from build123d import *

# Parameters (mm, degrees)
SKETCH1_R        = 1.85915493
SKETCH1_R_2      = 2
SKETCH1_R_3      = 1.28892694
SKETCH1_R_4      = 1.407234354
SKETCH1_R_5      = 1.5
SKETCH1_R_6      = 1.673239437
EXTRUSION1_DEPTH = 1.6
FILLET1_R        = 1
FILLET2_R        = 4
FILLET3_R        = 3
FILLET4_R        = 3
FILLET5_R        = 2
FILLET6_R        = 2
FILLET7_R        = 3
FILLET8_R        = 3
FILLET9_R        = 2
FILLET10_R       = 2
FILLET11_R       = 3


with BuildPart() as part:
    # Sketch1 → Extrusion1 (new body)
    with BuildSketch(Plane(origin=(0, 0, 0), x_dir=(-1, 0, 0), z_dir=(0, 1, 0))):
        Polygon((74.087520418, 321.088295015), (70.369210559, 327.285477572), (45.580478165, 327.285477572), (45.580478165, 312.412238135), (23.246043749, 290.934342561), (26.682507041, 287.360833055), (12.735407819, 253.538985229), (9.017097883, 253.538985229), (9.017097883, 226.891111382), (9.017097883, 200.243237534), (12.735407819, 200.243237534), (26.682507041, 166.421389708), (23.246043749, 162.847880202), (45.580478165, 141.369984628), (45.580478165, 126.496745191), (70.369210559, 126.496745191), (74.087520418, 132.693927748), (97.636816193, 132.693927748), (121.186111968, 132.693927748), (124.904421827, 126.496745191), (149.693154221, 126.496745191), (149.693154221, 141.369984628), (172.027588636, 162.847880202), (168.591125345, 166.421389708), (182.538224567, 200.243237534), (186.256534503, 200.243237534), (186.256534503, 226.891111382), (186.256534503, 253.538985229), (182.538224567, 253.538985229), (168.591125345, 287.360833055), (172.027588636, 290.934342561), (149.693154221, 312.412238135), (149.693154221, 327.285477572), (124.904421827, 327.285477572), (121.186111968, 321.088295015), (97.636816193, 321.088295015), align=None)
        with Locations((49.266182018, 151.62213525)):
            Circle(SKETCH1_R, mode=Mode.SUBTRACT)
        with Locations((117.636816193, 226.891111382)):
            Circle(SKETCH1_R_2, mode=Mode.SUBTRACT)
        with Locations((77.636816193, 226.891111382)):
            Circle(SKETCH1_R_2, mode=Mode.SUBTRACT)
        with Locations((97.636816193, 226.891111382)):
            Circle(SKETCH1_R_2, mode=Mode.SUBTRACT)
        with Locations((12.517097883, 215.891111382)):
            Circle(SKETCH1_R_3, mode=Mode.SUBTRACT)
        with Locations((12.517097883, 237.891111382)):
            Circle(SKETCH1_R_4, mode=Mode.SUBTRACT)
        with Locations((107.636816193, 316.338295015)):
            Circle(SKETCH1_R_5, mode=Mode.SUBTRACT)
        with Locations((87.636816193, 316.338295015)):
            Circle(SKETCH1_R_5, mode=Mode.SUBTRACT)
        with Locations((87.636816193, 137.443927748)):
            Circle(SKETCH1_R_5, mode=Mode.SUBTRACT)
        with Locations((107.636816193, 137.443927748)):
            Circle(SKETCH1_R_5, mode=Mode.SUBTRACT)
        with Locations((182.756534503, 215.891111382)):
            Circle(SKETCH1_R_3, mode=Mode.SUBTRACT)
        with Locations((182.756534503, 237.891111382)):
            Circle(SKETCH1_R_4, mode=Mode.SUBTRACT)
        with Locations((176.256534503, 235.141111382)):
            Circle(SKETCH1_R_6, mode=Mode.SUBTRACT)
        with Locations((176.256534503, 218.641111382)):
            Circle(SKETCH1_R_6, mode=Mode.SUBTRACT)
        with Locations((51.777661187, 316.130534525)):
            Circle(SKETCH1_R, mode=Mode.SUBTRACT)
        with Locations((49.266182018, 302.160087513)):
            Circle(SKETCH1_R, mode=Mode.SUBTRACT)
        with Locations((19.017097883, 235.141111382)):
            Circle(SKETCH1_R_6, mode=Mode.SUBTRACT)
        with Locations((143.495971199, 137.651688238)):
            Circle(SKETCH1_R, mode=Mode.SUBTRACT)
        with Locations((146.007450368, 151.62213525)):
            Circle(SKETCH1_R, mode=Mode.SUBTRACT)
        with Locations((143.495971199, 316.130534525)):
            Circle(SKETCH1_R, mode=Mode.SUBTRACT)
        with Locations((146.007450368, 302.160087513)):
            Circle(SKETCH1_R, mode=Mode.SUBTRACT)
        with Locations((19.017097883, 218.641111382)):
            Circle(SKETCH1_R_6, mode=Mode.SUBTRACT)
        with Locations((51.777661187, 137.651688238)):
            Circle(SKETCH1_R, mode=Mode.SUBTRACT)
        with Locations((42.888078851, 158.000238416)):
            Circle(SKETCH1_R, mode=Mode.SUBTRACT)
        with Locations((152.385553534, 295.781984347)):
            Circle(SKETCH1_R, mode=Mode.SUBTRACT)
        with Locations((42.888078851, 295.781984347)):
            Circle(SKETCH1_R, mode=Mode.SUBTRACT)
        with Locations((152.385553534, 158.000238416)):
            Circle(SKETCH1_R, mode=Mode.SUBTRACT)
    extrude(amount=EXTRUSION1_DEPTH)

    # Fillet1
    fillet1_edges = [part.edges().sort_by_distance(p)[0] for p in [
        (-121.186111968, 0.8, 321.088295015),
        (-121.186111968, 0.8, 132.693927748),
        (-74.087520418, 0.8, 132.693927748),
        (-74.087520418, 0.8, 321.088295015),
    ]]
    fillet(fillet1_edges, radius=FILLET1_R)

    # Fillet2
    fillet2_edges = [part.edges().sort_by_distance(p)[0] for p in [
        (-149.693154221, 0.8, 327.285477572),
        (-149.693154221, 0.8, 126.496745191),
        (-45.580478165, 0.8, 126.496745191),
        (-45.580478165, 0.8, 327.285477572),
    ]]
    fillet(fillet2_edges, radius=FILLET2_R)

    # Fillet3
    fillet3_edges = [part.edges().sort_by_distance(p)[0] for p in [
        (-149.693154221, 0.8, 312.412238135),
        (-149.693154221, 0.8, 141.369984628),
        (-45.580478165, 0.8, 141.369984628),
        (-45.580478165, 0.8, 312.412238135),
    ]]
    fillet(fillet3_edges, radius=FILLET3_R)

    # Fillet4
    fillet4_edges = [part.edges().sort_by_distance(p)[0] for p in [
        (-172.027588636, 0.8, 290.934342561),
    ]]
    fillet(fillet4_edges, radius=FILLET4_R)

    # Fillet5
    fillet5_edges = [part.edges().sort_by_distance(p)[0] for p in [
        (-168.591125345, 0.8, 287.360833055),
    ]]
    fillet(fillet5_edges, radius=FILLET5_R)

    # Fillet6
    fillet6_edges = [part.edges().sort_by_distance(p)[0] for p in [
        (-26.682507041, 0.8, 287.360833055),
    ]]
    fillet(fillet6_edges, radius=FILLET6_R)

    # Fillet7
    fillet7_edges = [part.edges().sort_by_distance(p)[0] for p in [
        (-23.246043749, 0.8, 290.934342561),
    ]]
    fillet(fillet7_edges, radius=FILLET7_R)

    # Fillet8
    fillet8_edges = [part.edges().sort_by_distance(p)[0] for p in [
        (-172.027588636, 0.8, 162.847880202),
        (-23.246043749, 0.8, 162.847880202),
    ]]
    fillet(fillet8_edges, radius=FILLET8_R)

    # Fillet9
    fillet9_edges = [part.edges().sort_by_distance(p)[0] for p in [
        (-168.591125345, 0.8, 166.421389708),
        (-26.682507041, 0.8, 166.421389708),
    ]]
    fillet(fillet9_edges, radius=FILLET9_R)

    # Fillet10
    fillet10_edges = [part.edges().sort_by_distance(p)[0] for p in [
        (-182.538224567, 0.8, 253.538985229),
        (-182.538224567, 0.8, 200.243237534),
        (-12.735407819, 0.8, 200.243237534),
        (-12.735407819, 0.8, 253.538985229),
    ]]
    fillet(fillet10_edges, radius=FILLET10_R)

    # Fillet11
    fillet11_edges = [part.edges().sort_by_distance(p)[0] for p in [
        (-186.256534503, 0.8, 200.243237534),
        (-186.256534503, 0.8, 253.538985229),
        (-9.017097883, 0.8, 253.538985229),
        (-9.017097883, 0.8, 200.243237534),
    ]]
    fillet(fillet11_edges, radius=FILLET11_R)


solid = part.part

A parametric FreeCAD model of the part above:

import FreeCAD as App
import Part
import Sketcher

V = App.Vector
Q = App.Units.Quantity


def edges_at(feature, points):
    """Names of the edges that pass closest to the given points."""
    edges = feature.Shape.Edges
    near = lambda p: min(range(len(edges)), key=lambda i: edges[i].distToShape(Part.Vertex(*p))[0])
    return sorted({f"Edge{near(p) + 1}" for p in points})

doc = App.newDocument("Part")
body = doc.addObject("PartDesign::Body", "Body")

sketch1 = body.newObject("Sketcher::SketchObject", "Sketch")
sketch1.AttachmentSupport = (doc.getObject("XZ_Plane"), [""])
sketch1.MapMode = "FlatFace"
sketch1.addGeometry([
    Part.LineSegment(V(-74.1, 321.1, 0), V(-70.4, 327.3, 0)),
    Part.LineSegment(V(-70.4, 327.3, 0), V(-45.6, 327.3, 0)),
    Part.LineSegment(V(-45.6, 327.3, 0), V(-45.6, 312.4, 0)),
    Part.LineSegment(V(-45.6, 312.4, 0), V(-23.2, 290.9, 0)),
    Part.LineSegment(V(-23.2, 290.9, 0), V(-26.7, 287.4, 0)),
    Part.LineSegment(V(-26.7, 287.4, 0), V(-12.7, 253.5, 0)),
    Part.LineSegment(V(-12.7, 253.5, 0), V(-9, 253.5, 0)),
    Part.LineSegment(V(-9, 253.5, 0), V(-9, 200.2, 0)),
    Part.LineSegment(V(-9, 200.2, 0), V(-12.7, 200.2, 0)),
    Part.LineSegment(V(-12.7, 200.2, 0), V(-26.7, 166.4, 0)),
    Part.LineSegment(V(-26.7, 166.4, 0), V(-23.2, 162.8, 0)),
    Part.LineSegment(V(-23.2, 162.8, 0), V(-45.6, 141.4, 0)),
    Part.LineSegment(V(-45.6, 141.4, 0), V(-45.6, 126.5, 0)),
    Part.LineSegment(V(-45.6, 126.5, 0), V(-70.4, 126.5, 0)),
    Part.LineSegment(V(-70.4, 126.5, 0), V(-74.1, 132.7, 0)),
    Part.LineSegment(V(-74.1, 132.7, 0), V(-121.2, 132.7, 0)),
    Part.LineSegment(V(-121.2, 132.7, 0), V(-124.9, 126.5, 0)),
    Part.LineSegment(V(-124.9, 126.5, 0), V(-149.7, 126.5, 0)),
    Part.LineSegment(V(-149.7, 126.5, 0), V(-149.7, 141.4, 0)),
    Part.LineSegment(V(-149.7, 141.4, 0), V(-172, 162.8, 0)),
    Part.LineSegment(V(-172, 162.8, 0), V(-168.6, 166.4, 0)),
    Part.LineSegment(V(-168.6, 166.4, 0), V(-182.5, 200.2, 0)),
    Part.LineSegment(V(-182.5, 200.2, 0), V(-186.3, 200.2, 0)),
    Part.LineSegment(V(-186.3, 200.2, 0), V(-186.3, 253.5, 0)),
    Part.LineSegment(V(-186.3, 253.5, 0), V(-182.5, 253.5, 0)),
    Part.LineSegment(V(-182.5, 253.5, 0), V(-168.6, 287.4, 0)),
    Part.LineSegment(V(-168.6, 287.4, 0), V(-172, 290.9, 0)),
    Part.LineSegment(V(-172, 290.9, 0), V(-149.7, 312.4, 0)),
    Part.LineSegment(V(-149.7, 312.4, 0), V(-149.7, 327.3, 0)),
    Part.LineSegment(V(-149.7, 327.3, 0), V(-124.9, 327.3, 0)),
    Part.LineSegment(V(-124.9, 327.3, 0), V(-121.2, 321.1, 0)),
    Part.LineSegment(V(-121.2, 321.1, 0), V(-74.1, 321.1, 0)),
    Part.Circle(V(-51.8, 137.7, 0), V(0, 0, 1), 1.9),
    Part.Circle(V(-42.9, 158, 0), V(0, 0, 1), 1.9),
    Part.Circle(V(-49.3, 151.6, 0), V(0, 0, 1), 1.9),
    Part.Circle(V(-87.6, 137.4, 0), V(0, 0, 1), 1.5),
    Part.Circle(V(-12.5, 215.9, 0), V(0, 0, 1), 1.3),
    Part.Circle(V(-19, 218.6, 0), V(0, 0, 1), 1.7),
    Part.Circle(V(-107.6, 137.4, 0), V(0, 0, 1), 1.5),
    Part.Circle(V(-143.5, 137.7, 0), V(0, 0, 1), 1.9),
    Part.Circle(V(-146, 151.6, 0), V(0, 0, 1), 1.9),
    Part.Circle(V(-152.4, 158, 0), V(0, 0, 1), 1.9),
    Part.Circle(V(-176.3, 218.6, 0), V(0, 0, 1), 1.7),
    Part.Circle(V(-182.8, 215.9, 0), V(0, 0, 1), 1.3),
    Part.Circle(V(-12.5, 237.9, 0), V(0, 0, 1), 1.4),
    Part.Circle(V(-19, 235.1, 0), V(0, 0, 1), 1.7),
    Part.Circle(V(-77.6, 226.9, 0), V(0, 0, 1), 2),
    Part.Circle(V(-42.9, 295.8, 0), V(0, 0, 1), 1.9),
    Part.Circle(V(-49.3, 302.2, 0), V(0, 0, 1), 1.9),
    Part.Circle(V(-51.8, 316.1, 0), V(0, 0, 1), 1.9),
    Part.Circle(V(-87.6, 316.3, 0), V(0, 0, 1), 1.5),
    Part.Circle(V(-97.6, 226.9, 0), V(0, 0, 1), 2),
    Part.Circle(V(-117.6, 226.9, 0), V(0, 0, 1), 2),
    Part.Circle(V(-176.3, 235.1, 0), V(0, 0, 1), 1.7),
    Part.Circle(V(-182.8, 237.9, 0), V(0, 0, 1), 1.4),
    Part.Circle(V(-107.6, 316.3, 0), V(0, 0, 1), 1.5),
    Part.Circle(V(-146, 302.2, 0), V(0, 0, 1), 1.9),
    Part.Circle(V(-152.4, 295.8, 0), V(0, 0, 1), 1.9),
    Part.Circle(V(-143.5, 316.1, 0), V(0, 0, 1), 1.9),
], False)
sketch1.addConstraint([
    Sketcher.Constraint("Coincident", 0, 2, 1, 1),
    Sketcher.Constraint("Coincident", 1, 2, 2, 1),
    Sketcher.Constraint("Coincident", 2, 2, 3, 1),
    Sketcher.Constraint("Coincident", 3, 2, 4, 1),
    Sketcher.Constraint("Coincident", 4, 2, 5, 1),
    Sketcher.Constraint("Coincident", 5, 2, 6, 1),
    Sketcher.Constraint("Coincident", 6, 2, 7, 1),
    Sketcher.Constraint("Coincident", 7, 2, 8, 1),
    Sketcher.Constraint("Coincident", 8, 2, 9, 1),
    Sketcher.Constraint("Coincident", 9, 2, 10, 1),
    Sketcher.Constraint("Coincident", 10, 2, 11, 1),
    Sketcher.Constraint("Coincident", 11, 2, 12, 1),
    Sketcher.Constraint("Coincident", 12, 2, 13, 1),
    Sketcher.Constraint("Coincident", 13, 2, 14, 1),
    Sketcher.Constraint("Coincident", 14, 2, 15, 1),
    Sketcher.Constraint("Coincident", 15, 2, 16, 1),
    Sketcher.Constraint("Coincident", 16, 2, 17, 1),
    Sketcher.Constraint("Coincident", 17, 2, 18, 1),
    Sketcher.Constraint("Coincident", 18, 2, 19, 1),
    Sketcher.Constraint("Coincident", 19, 2, 20, 1),
    Sketcher.Constraint("Coincident", 20, 2, 21, 1),
    Sketcher.Constraint("Coincident", 21, 2, 22, 1),
    Sketcher.Constraint("Coincident", 22, 2, 23, 1),
    Sketcher.Constraint("Coincident", 23, 2, 24, 1),
    Sketcher.Constraint("Coincident", 24, 2, 25, 1),
    Sketcher.Constraint("Coincident", 25, 2, 26, 1),
    Sketcher.Constraint("Coincident", 26, 2, 27, 1),
    Sketcher.Constraint("Coincident", 27, 2, 28, 1),
    Sketcher.Constraint("Coincident", 28, 2, 29, 1),
    Sketcher.Constraint("Coincident", 29, 2, 30, 1),
    Sketcher.Constraint("Coincident", 30, 2, 31, 1),
    Sketcher.Constraint("Coincident", 31, 2, 0, 1),
    Sketcher.Constraint("Horizontal", 1),
    Sketcher.Constraint("Vertical", 2),
    Sketcher.Constraint("Horizontal", 6),
    Sketcher.Constraint("Vertical", 7),
    Sketcher.Constraint("Horizontal", 8),
    Sketcher.Constraint("Vertical", 12),
    Sketcher.Constraint("Horizontal", 13),
    Sketcher.Constraint("Horizontal", 15),
    Sketcher.Constraint("Horizontal", 17),
    Sketcher.Constraint("Vertical", 18),
    Sketcher.Constraint("Horizontal", 22),
    Sketcher.Constraint("Vertical", 23),
    Sketcher.Constraint("Horizontal", 24),
    Sketcher.Constraint("Vertical", 28),
    Sketcher.Constraint("Horizontal", 29),
    Sketcher.Constraint("Horizontal", 31),
    Sketcher.Constraint("Equal", 32, 33),
    Sketcher.Constraint("Equal", 33, 34),
    Sketcher.Constraint("Equal", 35, 38),
    Sketcher.Constraint("Equal", 34, 39),
    Sketcher.Constraint("Equal", 39, 40),
    Sketcher.Constraint("Equal", 40, 41),
    Sketcher.Constraint("Equal", 37, 42),
    Sketcher.Constraint("Equal", 36, 43),
    Sketcher.Constraint("Equal", 42, 45),
    Sketcher.Constraint("Equal", 41, 47),
    Sketcher.Constraint("Equal", 47, 48),
    Sketcher.Constraint("Equal", 48, 49),
    Sketcher.Constraint("Equal", 38, 50),
    Sketcher.Constraint("Equal", 46, 51),
    Sketcher.Constraint("Equal", 51, 52),
    Sketcher.Constraint("Equal", 45, 53),
    Sketcher.Constraint("Equal", 44, 54),
    Sketcher.Constraint("Equal", 50, 55),
    Sketcher.Constraint("Equal", 49, 56),
    Sketcher.Constraint("Equal", 56, 57),
    Sketcher.Constraint("Equal", 57, 58),
    Sketcher.Constraint("Perpendicular", 3, 4),
    Sketcher.Constraint("Perpendicular", 10, 11),
    Sketcher.Constraint("Parallel", 0, 16),
    Sketcher.Constraint("Perpendicular", 4, 19),
    Sketcher.Constraint("Perpendicular", 19, 20),
    Sketcher.Constraint("Parallel", 5, 21),
    Sketcher.Constraint("Parallel", 9, 25),
    Sketcher.Constraint("Perpendicular", 11, 26),
    Sketcher.Constraint("Perpendicular", 26, 27),
    Sketcher.Constraint("Parallel", 14, 30),
    Sketcher.Constraint("Horizontal", 35, 3, 38, 3),
    Sketcher.Constraint("Horizontal", 32, 3, 39, 3),
    Sketcher.Constraint("Horizontal", 34, 3, 40, 3),
    Sketcher.Constraint("Horizontal", 33, 3, 41, 3),
    Sketcher.Constraint("Horizontal", 37, 3, 42, 3),
    Sketcher.Constraint("Horizontal", 36, 3, 43, 3),
    Sketcher.Constraint("Horizontal", 46, 3, 51, 3),
    Sketcher.Constraint("Horizontal", 51, 3, 52, 3),
    Sketcher.Constraint("Horizontal", 45, 3, 53, 3),
    Sketcher.Constraint("Horizontal", 44, 3, 54, 3),
    Sketcher.Constraint("Horizontal", 50, 3, 55, 3),
    Sketcher.Constraint("Horizontal", 48, 3, 56, 3),
    Sketcher.Constraint("Horizontal", 47, 3, 57, 3),
    Sketcher.Constraint("Horizontal", 49, 3, 58, 3),
    Sketcher.Constraint("Horizontal", 13, 2, 16, 2),
    Sketcher.Constraint("Horizontal", 11, 2, 18, 2),
    Sketcher.Constraint("Horizontal", 10, 2, 19, 2),
    Sketcher.Constraint("Horizontal", 9, 2, 20, 2),
    Sketcher.Constraint("Horizontal", 8, 2, 21, 2),
    Sketcher.Constraint("Horizontal", 6, 2, 23, 2),
    Sketcher.Constraint("Horizontal", 4, 2, 25, 2),
    Sketcher.Constraint("Horizontal", 3, 2, 26, 2),
    Sketcher.Constraint("Horizontal", 2, 2, 27, 2),
    Sketcher.Constraint("Horizontal", 1, 2, 28, 2),
    Sketcher.Constraint("Vertical", 36, 3, 44, 3),
    Sketcher.Constraint("Vertical", 37, 3, 45, 3),
    Sketcher.Constraint("Vertical", 33, 3, 47, 3),
    Sketcher.Constraint("Vertical", 34, 3, 48, 3),
    Sketcher.Constraint("Vertical", 32, 3, 49, 3),
    Sketcher.Constraint("Vertical", 35, 3, 50, 3),
    Sketcher.Constraint("Vertical", 42, 3, 53, 3),
    Sketcher.Constraint("Vertical", 43, 3, 54, 3),
    Sketcher.Constraint("Vertical", 38, 3, 55, 3),
    Sketcher.Constraint("Vertical", 40, 3, 56, 3),
    Sketcher.Constraint("Vertical", 41, 3, 57, 3),
    Sketcher.Constraint("Vertical", 39, 3, 58, 3),
    Sketcher.Constraint("Vertical", 5, 2, 8, 2),
    Sketcher.Constraint("Vertical", 4, 2, 9, 2),
    Sketcher.Constraint("Vertical", 3, 2, 10, 2),
    Sketcher.Constraint("Vertical", 2, 2, 11, 2),
    Sketcher.Constraint("Vertical", 0, 2, 13, 2),
    Sketcher.Constraint("Vertical", 21, 2, 24, 2),
    Sketcher.Constraint("Vertical", 20, 2, 25, 2),
    Sketcher.Constraint("Vertical", 19, 2, 26, 2),
    Sketcher.Constraint("Vertical", 16, 2, 29, 2),
    Sketcher.Constraint("Vertical", 15, 2, 30, 2),
    Sketcher.Constraint("Vertical", 14, 2, 31, 2),
    Sketcher.Constraint("Equal", 13, 17),
    Sketcher.Constraint("Equal", 8, 22),
    Sketcher.Constraint("Equal", 2, 12),
    Sketcher.Constraint("Diameter", 35, 3.0),
    Sketcher.Constraint("Diameter", 46, 4.0),
    Sketcher.Constraint("DistanceX", 38, 3, 35, 3, 20.0),
    Sketcher.Constraint("DistanceY", 36, 3, 44, 3, 22.0),
    Sketcher.Constraint("DistanceY", 36, 3, 46, 3, 11.0),
    Sketcher.Constraint("DistanceX", 50, 3, 46, 3, 10.0),
    Sketcher.Constraint("DistanceX", 51, 3, 46, 3, 20.0),
    Sketcher.Constraint("DistanceX", 52, 3, 51, 3, 20.0),
    Sketcher.Constraint("DistanceX", 45, 3, 6, 2, 10.0),
    Sketcher.Constraint("DistanceX", 22, 2, 42, 3, 10.0),
    Sketcher.Constraint("Angle", 3, Q("-43.88 deg")),
    Sketcher.Constraint("DistanceX", 37, 3, 36, 3, 6.5),
    Sketcher.Constraint("DistanceX", 43, 3, 42, 3, 6.5),
    Sketcher.Constraint("DistanceY", 37, 3, 45, 3, 16.5),
    Sketcher.Constraint("Diameter", 32, 3.71831),
    Sketcher.Constraint("Diameter", 37, 3.346479),
    Sketcher.Constraint("Diameter", 44, 2.814469),
    Sketcher.Constraint("DistanceY", 36, 3, 37, 3, 2.75),
    Sketcher.Constraint("DistanceY", 14, 2, 35, 3, 4.75),
    Sketcher.Constraint("DistanceY", 55, 3, 30, 2, 4.75),
    Sketcher.Constraint("Diameter", 36, 2.577854),
    Sketcher.Constraint("DistanceX", 6, 1, 6, 2, 3.71831),
    Sketcher.Constraint("DistanceX", 15, 2, 15, 1, 47.098592),
    Sketcher.Constraint("DistanceY", 2, 2, 2, 1, 14.873239),
    Sketcher.Constraint("DistanceX", 1, 2, 47, 3, 2.692399),
    Sketcher.Constraint("DistanceY", 4, 2, 49, 3, 28.769701),
    Sketcher.Constraint("DistanceX", 4, 2, 5, 2, 13.947099),
    Sketcher.Constraint("DistanceY", 32, 3, 9, 2, 28.769701),
    Sketcher.Constraint("DistanceX", 41, 3, 17, 2, 2.692399),
    Sketcher.Constraint("DistanceX", 1, 1, 1, 2, 24.788732),
    Sketcher.Constraint("DistanceY", 7, 2, 7, 1, 53.295748),
    Sketcher.Constraint("DistanceX", 32, 3, -1, 1, 51.777661),
    Sketcher.Constraint("DistanceY", -1, 1, 32, 3, 137.651688),
    Sketcher.Constraint("DistanceX", 33, 3, -1, 1, 42.888079),
    Sketcher.Constraint("DistanceY", -1, 1, 33, 3, 158.000238),
    Sketcher.Constraint("DistanceY", -1, 1, 36, 3, 215.891111),
    Sketcher.Constraint("DistanceX", 39, 3, -1, 1, 143.495971),
    Sketcher.Constraint("DistanceX", 40, 3, -1, 1, 146.00745),
    Sketcher.Constraint("DistanceY", -1, 1, 2, 2, 312.412238),
    Sketcher.Constraint("DistanceY", -1, 1, 10, 2, 162.84788),
    Sketcher.Constraint("DistanceX", 14, 2, -1, 1, 74.08752),
    Sketcher.Constraint("DistanceX", 19, 2, -1, 1, 172.027589),
    Sketcher.Constraint("DistanceX", 32, 3, 34, 3, 2.511479),
    Sketcher.Constraint("DistanceY", 35, 3, 32, 3, 0.20776),
    Sketcher.Constraint("DistanceX", 35, 3, 36, 3, 75.119718),
    Sketcher.Constraint("DistanceY", 47, 3, 49, 3, 20.34855),
    Sketcher.Constraint("DistanceY", 48, 3, 0, 2, 25.12539),
    Sketcher.Constraint("DistanceY", 11, 2, 34, 3, 10.252151),
])
pad1 = body.newObject("PartDesign::Pad", "Pad")
pad1.Profile = sketch1
pad1.Length = 1.6
pad1.Reversed = True
doc.recompute()

fillet = body.newObject("PartDesign::Fillet", "Fillet")
fillet.Base = (pad1, edges_at(pad1, [
    (-121.186, 0.8, 321.088),
    (-121.186, 0.8, 132.694),
    (-74.088, 0.8, 132.694),
    (-74.088, 0.8, 321.088),
]))
fillet.Radius = 1
doc.recompute()

fillet2 = body.newObject("PartDesign::Fillet", "Fillet001")
fillet2.Base = (fillet, edges_at(fillet, [
    (-149.693, 0.8, 327.285),
    (-149.693, 0.8, 126.497),
    (-45.58, 0.8, 126.497),
    (-45.58, 0.8, 327.285),
]))
fillet2.Radius = 4
doc.recompute()

fillet3 = body.newObject("PartDesign::Fillet", "Fillet002")
fillet3.Base = (fillet2, edges_at(fillet2, [
    (-149.693, 0.8, 312.412),
    (-149.693, 0.8, 141.37),
    (-45.58, 0.8, 141.37),
    (-45.58, 0.8, 312.412),
]))
fillet3.Radius = 3
doc.recompute()

fillet4 = body.newObject("PartDesign::Fillet", "Fillet003")
fillet4.Base = (fillet3, edges_at(fillet3, [(-172.028, 0.8, 290.934)]))
fillet4.Radius = 3
doc.recompute()

fillet5 = body.newObject("PartDesign::Fillet", "Fillet004")
fillet5.Base = (fillet4, edges_at(fillet4, [(-168.591, 0.8, 287.361)]))
fillet5.Radius = 2
doc.recompute()

fillet6 = body.newObject("PartDesign::Fillet", "Fillet005")
fillet6.Base = (fillet5, edges_at(fillet5, [(-26.683, 0.8, 287.361)]))
fillet6.Radius = 2
doc.recompute()

fillet7 = body.newObject("PartDesign::Fillet", "Fillet006")
fillet7.Base = (fillet6, edges_at(fillet6, [(-23.246, 0.8, 290.934)]))
fillet7.Radius = 3
doc.recompute()

fillet8 = body.newObject("PartDesign::Fillet", "Fillet007")
fillet8.Base = (fillet7, edges_at(fillet7, [(-172.028, 0.8, 162.848), (-23.246, 0.8, 162.848)]))
fillet8.Radius = 3
doc.recompute()

fillet9 = body.newObject("PartDesign::Fillet", "Fillet008")
fillet9.Base = (fillet8, edges_at(fillet8, [(-168.591, 0.8, 166.421), (-26.683, 0.8, 166.421)]))
fillet9.Radius = 2
doc.recompute()

fillet10 = body.newObject("PartDesign::Fillet", "Fillet009")
fillet10.Base = (fillet9, edges_at(fillet9, [
    (-182.538, 0.8, 253.539),
    (-182.538, 0.8, 200.243),
    (-12.735, 0.8, 200.243),
    (-12.735, 0.8, 253.539),
]))
fillet10.Radius = 2
doc.recompute()

fillet11 = body.newObject("PartDesign::Fillet", "Fillet010")
fillet11.Base = (fillet10, edges_at(fillet10, [
    (-186.257, 0.8, 200.243),
    (-186.257, 0.8, 253.539),
    (-9.017, 0.8, 253.539),
    (-9.017, 0.8, 200.243),
]))
fillet11.Radius = 3

doc.recompute()
